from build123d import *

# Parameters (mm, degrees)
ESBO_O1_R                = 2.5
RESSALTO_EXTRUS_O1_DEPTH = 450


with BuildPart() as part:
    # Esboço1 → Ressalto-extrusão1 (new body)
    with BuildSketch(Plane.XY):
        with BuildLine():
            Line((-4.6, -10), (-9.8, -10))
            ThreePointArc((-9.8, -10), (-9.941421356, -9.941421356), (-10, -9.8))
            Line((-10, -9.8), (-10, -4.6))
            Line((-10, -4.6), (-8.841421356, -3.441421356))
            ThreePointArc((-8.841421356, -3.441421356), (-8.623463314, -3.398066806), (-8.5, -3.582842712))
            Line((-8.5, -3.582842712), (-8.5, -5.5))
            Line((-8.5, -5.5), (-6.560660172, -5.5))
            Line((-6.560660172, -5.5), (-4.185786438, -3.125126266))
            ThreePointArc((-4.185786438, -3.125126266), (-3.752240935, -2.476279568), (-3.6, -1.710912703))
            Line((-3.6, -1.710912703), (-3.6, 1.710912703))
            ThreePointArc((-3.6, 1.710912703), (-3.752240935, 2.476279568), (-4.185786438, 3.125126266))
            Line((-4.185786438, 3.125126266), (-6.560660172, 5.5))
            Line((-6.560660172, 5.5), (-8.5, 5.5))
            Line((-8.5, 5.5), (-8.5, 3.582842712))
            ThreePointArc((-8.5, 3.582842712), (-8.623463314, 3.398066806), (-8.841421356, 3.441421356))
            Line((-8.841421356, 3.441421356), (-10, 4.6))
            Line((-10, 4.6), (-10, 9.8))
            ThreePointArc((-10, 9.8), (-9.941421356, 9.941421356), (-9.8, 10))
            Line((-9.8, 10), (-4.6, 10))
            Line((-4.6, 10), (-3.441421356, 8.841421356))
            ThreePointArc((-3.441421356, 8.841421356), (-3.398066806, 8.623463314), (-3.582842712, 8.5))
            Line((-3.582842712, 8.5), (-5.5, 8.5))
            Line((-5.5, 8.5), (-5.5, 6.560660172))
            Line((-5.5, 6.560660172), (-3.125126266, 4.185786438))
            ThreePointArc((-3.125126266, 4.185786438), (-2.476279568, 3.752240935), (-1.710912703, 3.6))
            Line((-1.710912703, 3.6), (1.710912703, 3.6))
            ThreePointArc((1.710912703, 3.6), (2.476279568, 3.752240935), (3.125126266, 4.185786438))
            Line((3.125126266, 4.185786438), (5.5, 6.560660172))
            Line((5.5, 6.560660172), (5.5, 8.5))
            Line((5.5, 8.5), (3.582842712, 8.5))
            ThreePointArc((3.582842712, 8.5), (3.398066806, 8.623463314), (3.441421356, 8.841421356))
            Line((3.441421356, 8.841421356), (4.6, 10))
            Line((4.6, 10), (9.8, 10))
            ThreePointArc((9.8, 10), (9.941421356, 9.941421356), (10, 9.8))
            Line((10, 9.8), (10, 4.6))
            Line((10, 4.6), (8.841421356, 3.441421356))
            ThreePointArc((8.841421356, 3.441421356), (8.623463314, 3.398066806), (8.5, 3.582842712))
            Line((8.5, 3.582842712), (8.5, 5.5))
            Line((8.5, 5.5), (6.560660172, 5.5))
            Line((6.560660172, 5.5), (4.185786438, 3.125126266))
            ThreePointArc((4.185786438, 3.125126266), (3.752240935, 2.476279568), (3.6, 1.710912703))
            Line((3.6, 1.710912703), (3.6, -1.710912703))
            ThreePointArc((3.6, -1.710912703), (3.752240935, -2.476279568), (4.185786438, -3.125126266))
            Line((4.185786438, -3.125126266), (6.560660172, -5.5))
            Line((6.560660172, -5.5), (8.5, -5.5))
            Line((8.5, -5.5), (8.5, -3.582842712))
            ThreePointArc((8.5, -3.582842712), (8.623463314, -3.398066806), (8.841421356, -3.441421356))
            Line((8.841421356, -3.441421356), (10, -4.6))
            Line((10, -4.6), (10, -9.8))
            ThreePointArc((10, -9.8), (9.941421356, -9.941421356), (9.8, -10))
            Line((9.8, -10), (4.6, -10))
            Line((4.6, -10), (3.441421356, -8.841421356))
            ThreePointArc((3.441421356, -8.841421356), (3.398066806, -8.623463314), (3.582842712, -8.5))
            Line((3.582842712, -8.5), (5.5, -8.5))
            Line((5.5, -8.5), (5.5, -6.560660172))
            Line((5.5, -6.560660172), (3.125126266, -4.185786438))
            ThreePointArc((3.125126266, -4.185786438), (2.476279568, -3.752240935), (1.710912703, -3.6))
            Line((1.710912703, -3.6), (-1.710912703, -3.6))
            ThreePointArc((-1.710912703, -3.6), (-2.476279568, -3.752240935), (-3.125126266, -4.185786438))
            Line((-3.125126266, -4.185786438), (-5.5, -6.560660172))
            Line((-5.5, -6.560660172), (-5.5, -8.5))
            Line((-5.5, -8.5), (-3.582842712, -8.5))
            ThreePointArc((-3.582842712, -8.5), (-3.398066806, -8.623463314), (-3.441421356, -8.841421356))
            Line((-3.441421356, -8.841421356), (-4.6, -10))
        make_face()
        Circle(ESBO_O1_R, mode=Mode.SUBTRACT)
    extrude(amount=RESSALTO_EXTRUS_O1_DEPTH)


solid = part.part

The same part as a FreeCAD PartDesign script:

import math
import FreeCAD as App
import Part
import Sketcher

doc = App.newDocument("Part")
body = doc.addObject("PartDesign::Body", "Body")

# Sketch on XY plane
sketch1 = body.newObject("Sketcher::SketchObject", "Sketch")
sketch1.AttachmentSupport = (doc.getObject("XY_Plane"), [""])
sketch1.MapMode = "FlatFace"
sketch1.addGeometry([
    Part.LineSegment(App.Vector(-9.8, -10, 0), App.Vector(-4.6, -10, 0)),  # 0
    Part.LineSegment(App.Vector(-4.6, -10, 0), App.Vector(-3.44, -8.84, 0)),  # 1
    Part.ArcOfCircle(Part.Circle(App.Vector(-3.58, -8.7, 0), App.Vector(0, 0, 1), 0.2), math.radians(-45), math.radians(90)),  # 2
    Part.LineSegment(App.Vector(-3.58, -8.5, 0), App.Vector(-5.5, -8.5, 0)),  # 3
    Part.LineSegment(App.Vector(-5.5, -8.5, 0), App.Vector(-5.5, -6.56, 0)),  # 4
    Part.LineSegment(App.Vector(-5.5, -6.56, 0), App.Vector(-3.13, -4.19, 0)),  # 5
    Part.ArcOfCircle(Part.Circle(App.Vector(-1.71, -5.6, 0), App.Vector(0, 0, 1), 2), math.radians(90), math.radians(135)),  # 6
    Part.LineSegment(App.Vector(-1.71, -3.6, 0), App.Vector(1.71, -3.6, 0)),  # 7
    Part.ArcOfCircle(Part.Circle(App.Vector(1.71, -5.6, 0), App.Vector(0, 0, 1), 2), math.radians(45), math.radians(90)),  # 8
    Part.LineSegment(App.Vector(3.13, -4.19, 0), App.Vector(5.5, -6.56, 0)),  # 9
    Part.LineSegment(App.Vector(5.5, -6.56, 0), App.Vector(5.5, -8.5, 0)),  # 10
    Part.LineSegment(App.Vector(5.5, -8.5, 0), App.Vector(3.58, -8.5, 0)),  # 11
    Part.ArcOfCircle(Part.Circle(App.Vector(3.58, -8.7, 0), App.Vector(0, 0, 1), 0.2), math.radians(90), math.radians(225)),  # 12
    Part.LineSegment(App.Vector(3.44, -8.84, 0), App.Vector(4.6, -10, 0)),  # 13
    Part.LineSegment(App.Vector(4.6, -10, 0), App.Vector(9.8, -10, 0)),  # 14
    Part.ArcOfCircle(Part.Circle(App.Vector(9.8, -9.8, 0), App.Vector(0, 0, 1), 0.2), math.radians(-90), math.radians(0)),  # 15
    Part.LineSegment(App.Vector(10, -9.8, 0), App.Vector(10, -4.6, 0)),  # 16
    Part.LineSegment(App.Vector(10, -4.6, 0), App.Vector(8.84, -3.44, 0)),  # 17
    Part.ArcOfCircle(Part.Circle(App.Vector(8.7, -3.58, 0), App.Vector(0, 0, 1), 0.2), math.radians(45), math.radians(180)),  # 18
    Part.LineSegment(App.Vector(8.5, -3.58, 0), App.Vector(8.5, -5.5, 0)),  # 19
    Part.LineSegment(App.Vector(8.5, -5.5, 0), App.Vector(6.56, -5.5, 0)),  # 20
    Part.LineSegment(App.Vector(6.56, -5.5, 0), App.Vector(4.19, -3.13, 0)),  # 21
    Part.ArcOfCircle(Part.Circle(App.Vector(5.6, -1.71, 0), App.Vector(0, 0, 1), 2), math.radians(180), math.radians(225)),  # 22
    Part.LineSegment(App.Vector(3.6, -1.71, 0), App.Vector(3.6, 1.71, 0)),  # 23
    Part.ArcOfCircle(Part.Circle(App.Vector(5.6, 1.71, 0), App.Vector(0, 0, 1), 2), math.radians(135), math.radians(180)),  # 24
    Part.LineSegment(App.Vector(4.19, 3.13, 0), App.Vector(6.56, 5.5, 0)),  # 25
    Part.LineSegment(App.Vector(6.56, 5.5, 0), App.Vector(8.5, 5.5, 0)),  # 26
    Part.LineSegment(App.Vector(8.5, 5.5, 0), App.Vector(8.5, 3.58, 0)),  # 27
    Part.ArcOfCircle(Part.Circle(App.Vector(8.7, 3.58, 0), App.Vector(0, 0, 1), 0.2), math.radians(-180), math.radians(-45)),  # 28
    Part.LineSegment(App.Vector(8.84, 3.44, 0), App.Vector(10, 4.6, 0)),  # 29
    Part.LineSegment(App.Vector(10, 4.6, 0), App.Vector(10, 9.8, 0)),  # 30
    Part.ArcOfCircle(Part.Circle(App.Vector(9.8, 9.8, 0), App.Vector(0, 0, 1), 0.2), math.radians(0), math.radians(90)),  # 31
    Part.LineSegment(App.Vector(9.8, 10, 0), App.Vector(4.6, 10, 0)),  # 32
    Part.LineSegment(App.Vector(4.6, 10, 0), App.Vector(3.44, 8.84, 0)),  # 33
    Part.ArcOfCircle(Part.Circle(App.Vector(3.58, 8.7, 0), App.Vector(0, 0, 1), 0.2), math.radians(135), math.radians(270)),  # 34
    Part.LineSegment(App.Vector(3.58, 8.5, 0), App.Vector(5.5, 8.5, 0)),  # 35
    Part.LineSegment(App.Vector(5.5, 8.5, 0), App.Vector(5.5, 6.56, 0)),  # 36
    Part.LineSegment(App.Vector(5.5, 6.56, 0), App.Vector(3.13, 4.19, 0)),  # 37
    Part.ArcOfCircle(Part.Circle(App.Vector(1.71, 5.6, 0), App.Vector(0, 0, 1), 2), math.radians(-90), math.radians(-45)),  # 38
    Part.LineSegment(App.Vector(1.71, 3.6, 0), App.Vector(-1.71, 3.6, 0)),  # 39
    Part.ArcOfCircle(Part.Circle(App.Vector(-1.71, 5.6, 0), App.Vector(0, 0, 1), 2), math.radians(-135), math.radians(-90)),  # 40
    Part.LineSegment(App.Vector(-3.13, 4.19, 0), App.Vector(-5.5, 6.56, 0)),  # 41
    Part.LineSegment(App.Vector(-5.5, 6.56, 0), App.Vector(-5.5, 8.5, 0)),  # 42
    Part.LineSegment(App.Vector(-5.5, 8.5, 0), App.Vector(-3.58, 8.5, 0)),  # 43
    Part.ArcOfCircle(Part.Circle(App.Vector(-3.58, 8.7, 0), App.Vector(0, 0, 1), 0.2), math.radians(-90), math.radians(45)),  # 44
    Part.LineSegment(App.Vector(-3.44, 8.84, 0), App.Vector(-4.6, 10, 0)),  # 45
    Part.LineSegment(App.Vector(-4.6, 10, 0), App.Vector(-9.8, 10, 0)),  # 46
    Part.ArcOfCircle(Part.Circle(App.Vector(-9.8, 9.8, 0), App.Vector(0, 0, 1), 0.2), math.radians(90), math.radians(180)),  # 47
    Part.LineSegment(App.Vector(-10, 9.8, 0), App.Vector(-10, 4.6, 0)),  # 48
    Part.LineSegment(App.Vector(-10, 4.6, 0), App.Vector(-8.84, 3.44, 0)),  # 49
    Part.ArcOfCircle(Part.Circle(App.Vector(-8.7, 3.58, 0), App.Vector(0, 0, 1), 0.2), math.radians(-135), math.radians(0)),  # 50
    Part.LineSegment(App.Vector(-8.5, 3.58, 0), App.Vector(-8.5, 5.5, 0)),  # 51
    Part.LineSegment(App.Vector(-8.5, 5.5, 0), App.Vector(-6.56, 5.5, 0)),  # 52
    Part.LineSegment(App.Vector(-6.56, 5.5, 0), App.Vector(-4.19, 3.13, 0)),  # 53
    Part.ArcOfCircle(Part.Circle(App.Vector(-5.6, 1.71, 0), App.Vector(0, 0, 1), 2), math.radians(0), math.radians(45)),  # 54
    Part.LineSegment(App.Vector(-3.6, 1.71, 0), App.Vector(-3.6, -1.71, 0)),  # 55
    Part.ArcOfCircle(Part.Circle(App.Vector(-5.6, -1.71, 0), App.Vector(0, 0, 1), 2), math.radians(-45), math.radians(0)),  # 56
    Part.LineSegment(App.Vector(-4.19, -3.13, 0), App.Vector(-6.56, -5.5, 0)),  # 57
    Part.LineSegment(App.Vector(-6.56, -5.5, 0), App.Vector(-8.5, -5.5, 0)),  # 58
    Part.LineSegment(App.Vector(-8.5, -5.5, 0), App.Vector(-8.5, -3.58, 0)),  # 59
    Part.ArcOfCircle(Part.Circle(App.Vector(-8.7, -3.58, 0), App.Vector(0, 0, 1), 0.2), math.radians(0), math.radians(135)),  # 60
    Part.LineSegment(App.Vector(-8.84, -3.44, 0), App.Vector(-10, -4.6, 0)),  # 61
    Part.LineSegment(App.Vector(-10, -4.6, 0), App.Vector(-10, -9.8, 0)),  # 62
    Part.ArcOfCircle(Part.Circle(App.Vector(-9.8, -9.8, 0), App.Vector(0, 0, 1), 0.2), math.radians(-180), math.radians(-90)),  # 63
    Part.Circle(App.Vector(0, 0, 0), App.Vector(0, 0, 1), 2.5),  # 64
], False)
sketch1.addConstraint([
    Sketcher.Constraint("Coincident", 0, 2, 1, 1),
    Sketcher.Constraint("Tangent", 1, 2, 2, 1),
    Sketcher.Constraint("Tangent", 2, 2, 3, 1),
    Sketcher.Constraint("Coincident", 3, 2, 4, 1),
    Sketcher.Constraint("Coincident", 4, 2, 5, 1),
    Sketcher.Constraint("Tangent", 5, 2, 6, 2),
    Sketcher.Constraint("Tangent", 6, 1, 7, 1),
    Sketcher.Constraint("Tangent", 7, 2, 8, 2),
    Sketcher.Constraint("Tangent", 8, 1, 9, 1),
    Sketcher.Constraint("Coincident", 9, 2, 10, 1),
    Sketcher.Constraint("Coincident", 10, 2, 11, 1),
    Sketcher.Constraint("Tangent", 11, 2, 12, 1),
    Sketcher.Constraint("Tangent", 12, 2, 13, 1),
    Sketcher.Constraint("Coincident", 13, 2, 14, 1),
    Sketcher.Constraint("Tangent", 14, 2, 15, 1),
    Sketcher.Constraint("Tangent", 15, 2, 16, 1),
    Sketcher.Constraint("Coincident", 16, 2, 17, 1),
    Sketcher.Constraint("Tangent", 17, 2, 18, 1),
    Sketcher.Constraint("Tangent", 18, 2, 19, 1),
    Sketcher.Constraint("Coincident", 19, 2, 20, 1),
    Sketcher.Constraint("Coincident", 20, 2, 21, 1),
    Sketcher.Constraint("Tangent", 21, 2, 22, 2),
    Sketcher.Constraint("Tangent", 22, 1, 23, 1),
    Sketcher.Constraint("Tangent", 23, 2, 24, 2),
    Sketcher.Constraint("Tangent", 24, 1, 25, 1),
    Sketcher.Constraint("Coincident", 25, 2, 26, 1),
    Sketcher.Constraint("Coincident", 26, 2, 27, 1),
    Sketcher.Constraint("Tangent", 27, 2, 28, 1),
    Sketcher.Constraint("Tangent", 28, 2, 29, 1),
    Sketcher.Constraint("Coincident", 29, 2, 30, 1),
    Sketcher.Constraint("Tangent", 30, 2, 31, 1),
    Sketcher.Constraint("Tangent", 31, 2, 32, 1),
    Sketcher.Constraint("Coincident", 32, 2, 33, 1),
    Sketcher.Constraint("Tangent", 33, 2, 34, 1),
    Sketcher.Constraint("Tangent", 34, 2, 35, 1),
    Sketcher.Constraint("Coincident", 35, 2, 36, 1),
    Sketcher.Constraint("Coincident", 36, 2, 37, 1),
    Sketcher.Constraint("Tangent", 37, 2, 38, 2),
    Sketcher.Constraint("Tangent", 38, 1, 39, 1),
    Sketcher.Constraint("Tangent", 39, 2, 40, 2),
    Sketcher.Constraint("Tangent", 40, 1, 41, 1),
    Sketcher.Constraint("Coincident", 41, 2, 42, 1),
    Sketcher.Constraint("Coincident", 42, 2, 43, 1),
    Sketcher.Constraint("Tangent", 43, 2, 44, 1),
    Sketcher.Constraint("Tangent", 44, 2, 45, 1),
    Sketcher.Constraint("Coincident", 45, 2, 46, 1),
    Sketcher.Constraint("Tangent", 46, 2, 47, 1),
    Sketcher.Constraint("Tangent", 47, 2, 48, 1),
    Sketcher.Constraint("Coincident", 48, 2, 49, 1),
    Sketcher.Constraint("Tangent", 49, 2, 50, 1),
    Sketcher.Constraint("Tangent", 50, 2, 51, 1),
    Sketcher.Constraint("Coincident", 51, 2, 52, 1),
    Sketcher.Constraint("Coincident", 52, 2, 53, 1),
    Sketcher.Constraint("Tangent", 53, 2, 54, 2),
    Sketcher.Constraint("Tangent", 54, 1, 55, 1),
    Sketcher.Constraint("Tangent", 55, 2, 56, 2),
    Sketcher.Constraint("Tangent", 56, 1, 57, 1),
    Sketcher.Constraint("Coincident", 57, 2, 58, 1),
    Sketcher.Constraint("Coincident", 58, 2, 59, 1),
    Sketcher.Constraint("Tangent", 59, 2, 60, 1),
    Sketcher.Constraint("Tangent", 60, 2, 61, 1),
    Sketcher.Constraint("Coincident", 61, 2, 62, 1),
    Sketcher.Constraint("Tangent", 62, 2, 63, 1),
    Sketcher.Constraint("Tangent", 63, 2, 0, 1),
    Sketcher.Constraint("Horizontal", 0),
    Sketcher.Constraint("Horizontal", 3),
    Sketcher.Constraint("Vertical", 4),
    Sketcher.Constraint("Horizontal", 7),
    Sketcher.Constraint("Vertical", 10),
    Sketcher.Constraint("Horizontal", 11),
    Sketcher.Constraint("Horizontal", 14),
    Sketcher.Constraint("Vertical", 16),
    Sketcher.Constraint("Vertical", 19),
    Sketcher.Constraint("Horizontal", 20),
    Sketcher.Constraint("Vertical", 23),
    Sketcher.Constraint("Horizontal", 26),
    Sketcher.Constraint("Vertical", 27),
    Sketcher.Constraint("Vertical", 30),
    Sketcher.Constraint("Horizontal", 32),
    Sketcher.Constraint("Horizontal", 35),
    Sketcher.Constraint("Vertical", 36),
    Sketcher.Constraint("Horizontal", 39),
    Sketcher.Constraint("Vertical", 42),
    Sketcher.Constraint("Horizontal", 43),
    Sketcher.Constraint("Horizontal", 46),
    Sketcher.Constraint("Vertical", 48),
    Sketcher.Constraint("Vertical", 51),
    Sketcher.Constraint("Horizontal", 52),
    Sketcher.Constraint("Vertical", 55),
    Sketcher.Constraint("Horizontal", 58),
    Sketcher.Constraint("Vertical", 59),
    Sketcher.Constraint("Vertical", 62),
    Sketcher.Constraint("Coincident", 64, 3, -1, 1),
    Sketcher.Constraint("Equal", 6, 8),
    Sketcher.Constraint("Equal", 2, 12),
    Sketcher.Constraint("Equal", 12, 15),
    Sketcher.Constraint("Equal", 15, 18),
    Sketcher.Constraint("Equal", 8, 22),
    Sketcher.Constraint("Equal", 22, 24),
    Sketcher.Constraint("Equal", 18, 28),
    Sketcher.Constraint("Equal", 28, 31),
    Sketcher.Constraint("Equal", 31, 34),
    Sketcher.Constraint("Equal", 24, 38),
    Sketcher.Constraint("Equal", 38, 40),
    Sketcher.Constraint("Equal", 34, 44),
    Sketcher.Constraint("Equal", 44, 47),
    Sketcher.Constraint("Equal", 47, 50),
    Sketcher.Constraint("Equal", 40, 54),
    Sketcher.Constraint("Equal", 54, 56),
    Sketcher.Constraint("Equal", 50, 60),
    Sketcher.Constraint("Equal", 60, 63),
    Sketcher.Constraint("Symmetric", 2, 3, 34, 3, -1, 1),
    Sketcher.Constraint("Symmetric", 6, 3, 38, 3, -1, 1),
    Sketcher.Constraint("Symmetric", 12, 3, 44, 3, -1, 1),
    Sketcher.Constraint("Symmetric", 15, 3, 47, 3, -1, 1),
    Sketcher.Constraint("Symmetric", 18, 3, 50, 3, -1, 1),
    Sketcher.Constraint("Symmetric", 22, 3, 54, 3, -1, 1),
    Sketcher.Constraint("Symmetric", 28, 3, 60, 3, -1, 1),
    Sketcher.Constraint("Symmetric", 31, 3, 63, 3, -1, 1),
    Sketcher.Constraint("Symmetric", 4, 2, 36, 2, -1, 1),
    Sketcher.Constraint("Symmetric", 8, 1, 40, 1, -1, 1),
    Sketcher.Constraint("Symmetric", 20, 2, 52, 2, -1, 1),
    Sketcher.Constraint("Symmetric", 24, 1, 56, 1, -1, 1),
    Sketcher.Constraint("Symmetric", 2, 3, 12, 3, -2),
    Sketcher.Constraint("Symmetric", 31, 3, 47, 3, -2),
    Sketcher.Constraint("Symmetric", 28, 3, 50, 3, -2),
    Sketcher.Constraint("Symmetric", 5, 2, 8, 1, -2),
    Sketcher.Constraint("Symmetric", 25, 2, 52, 2, -2),
    Sketcher.Constraint("Parallel", 1, 5),
    Sketcher.Constraint("Perpendicular", 5, 9),
    Sketcher.Constraint("Parallel", 9, 13),
    Sketcher.Constraint("Parallel", 13, 17),
    Sketcher.Constraint("Parallel", 17, 21),
    Sketcher.Constraint("Perpendicular", 21, 25),
    Sketcher.Constraint("Parallel", 25, 29),
    Sketcher.Constraint("Parallel", 29, 33),
    Sketcher.Constraint("Parallel", 41, 45),
    Sketcher.Constraint("Parallel", 45, 49),
    Sketcher.Constraint("Parallel", 57, 61),
    Sketcher.Constraint("Horizontal", 4, 2, 9, 2),
    Sketcher.Constraint("Horizontal", 36, 2, 41, 2),
    Sketcher.Constraint("Horizontal", 20, 2, 57, 2),
    Sketcher.Constraint("Equal", 58, 4),
    Sketcher.Constraint("Equal", 46, 16),
    Sketcher.Constraint("Equal", 43, 19),
    Sketcher.Constraint("Equal", 39, 23),
    Sketcher.Constraint("Equal", 13, 17),
    Sketcher.Constraint("Equal", 9, 21),
    Sketcher.Constraint("Diameter", 64, 5.0),
    Sketcher.Constraint("Radius", 6, 2.0),
    Sketcher.Constraint("Radius", 2, 0.2),
    Sketcher.Constraint("DistanceX", 0, 1, 0, 2, 5.2),
    Sketcher.Constraint("DistanceY", 0, 2, -1, 1, 10.0),
    Sketcher.Constraint("DistanceY", 2, 3, -1, 1, 8.7),
    Sketcher.Constraint("DistanceY", 6, 3, -1, 1, 5.6),
    Sketcher.Constraint("DistanceX", 3, 2, -1, 1, 5.5),
    Sketcher.Constraint("DistanceX", 20, 2, 20, 1, 1.93934),
])
pad1 = body.newObject("PartDesign::Pad", "Pad")
pad1.Profile = sketch1
pad1.Length = 450

doc.recompute()
